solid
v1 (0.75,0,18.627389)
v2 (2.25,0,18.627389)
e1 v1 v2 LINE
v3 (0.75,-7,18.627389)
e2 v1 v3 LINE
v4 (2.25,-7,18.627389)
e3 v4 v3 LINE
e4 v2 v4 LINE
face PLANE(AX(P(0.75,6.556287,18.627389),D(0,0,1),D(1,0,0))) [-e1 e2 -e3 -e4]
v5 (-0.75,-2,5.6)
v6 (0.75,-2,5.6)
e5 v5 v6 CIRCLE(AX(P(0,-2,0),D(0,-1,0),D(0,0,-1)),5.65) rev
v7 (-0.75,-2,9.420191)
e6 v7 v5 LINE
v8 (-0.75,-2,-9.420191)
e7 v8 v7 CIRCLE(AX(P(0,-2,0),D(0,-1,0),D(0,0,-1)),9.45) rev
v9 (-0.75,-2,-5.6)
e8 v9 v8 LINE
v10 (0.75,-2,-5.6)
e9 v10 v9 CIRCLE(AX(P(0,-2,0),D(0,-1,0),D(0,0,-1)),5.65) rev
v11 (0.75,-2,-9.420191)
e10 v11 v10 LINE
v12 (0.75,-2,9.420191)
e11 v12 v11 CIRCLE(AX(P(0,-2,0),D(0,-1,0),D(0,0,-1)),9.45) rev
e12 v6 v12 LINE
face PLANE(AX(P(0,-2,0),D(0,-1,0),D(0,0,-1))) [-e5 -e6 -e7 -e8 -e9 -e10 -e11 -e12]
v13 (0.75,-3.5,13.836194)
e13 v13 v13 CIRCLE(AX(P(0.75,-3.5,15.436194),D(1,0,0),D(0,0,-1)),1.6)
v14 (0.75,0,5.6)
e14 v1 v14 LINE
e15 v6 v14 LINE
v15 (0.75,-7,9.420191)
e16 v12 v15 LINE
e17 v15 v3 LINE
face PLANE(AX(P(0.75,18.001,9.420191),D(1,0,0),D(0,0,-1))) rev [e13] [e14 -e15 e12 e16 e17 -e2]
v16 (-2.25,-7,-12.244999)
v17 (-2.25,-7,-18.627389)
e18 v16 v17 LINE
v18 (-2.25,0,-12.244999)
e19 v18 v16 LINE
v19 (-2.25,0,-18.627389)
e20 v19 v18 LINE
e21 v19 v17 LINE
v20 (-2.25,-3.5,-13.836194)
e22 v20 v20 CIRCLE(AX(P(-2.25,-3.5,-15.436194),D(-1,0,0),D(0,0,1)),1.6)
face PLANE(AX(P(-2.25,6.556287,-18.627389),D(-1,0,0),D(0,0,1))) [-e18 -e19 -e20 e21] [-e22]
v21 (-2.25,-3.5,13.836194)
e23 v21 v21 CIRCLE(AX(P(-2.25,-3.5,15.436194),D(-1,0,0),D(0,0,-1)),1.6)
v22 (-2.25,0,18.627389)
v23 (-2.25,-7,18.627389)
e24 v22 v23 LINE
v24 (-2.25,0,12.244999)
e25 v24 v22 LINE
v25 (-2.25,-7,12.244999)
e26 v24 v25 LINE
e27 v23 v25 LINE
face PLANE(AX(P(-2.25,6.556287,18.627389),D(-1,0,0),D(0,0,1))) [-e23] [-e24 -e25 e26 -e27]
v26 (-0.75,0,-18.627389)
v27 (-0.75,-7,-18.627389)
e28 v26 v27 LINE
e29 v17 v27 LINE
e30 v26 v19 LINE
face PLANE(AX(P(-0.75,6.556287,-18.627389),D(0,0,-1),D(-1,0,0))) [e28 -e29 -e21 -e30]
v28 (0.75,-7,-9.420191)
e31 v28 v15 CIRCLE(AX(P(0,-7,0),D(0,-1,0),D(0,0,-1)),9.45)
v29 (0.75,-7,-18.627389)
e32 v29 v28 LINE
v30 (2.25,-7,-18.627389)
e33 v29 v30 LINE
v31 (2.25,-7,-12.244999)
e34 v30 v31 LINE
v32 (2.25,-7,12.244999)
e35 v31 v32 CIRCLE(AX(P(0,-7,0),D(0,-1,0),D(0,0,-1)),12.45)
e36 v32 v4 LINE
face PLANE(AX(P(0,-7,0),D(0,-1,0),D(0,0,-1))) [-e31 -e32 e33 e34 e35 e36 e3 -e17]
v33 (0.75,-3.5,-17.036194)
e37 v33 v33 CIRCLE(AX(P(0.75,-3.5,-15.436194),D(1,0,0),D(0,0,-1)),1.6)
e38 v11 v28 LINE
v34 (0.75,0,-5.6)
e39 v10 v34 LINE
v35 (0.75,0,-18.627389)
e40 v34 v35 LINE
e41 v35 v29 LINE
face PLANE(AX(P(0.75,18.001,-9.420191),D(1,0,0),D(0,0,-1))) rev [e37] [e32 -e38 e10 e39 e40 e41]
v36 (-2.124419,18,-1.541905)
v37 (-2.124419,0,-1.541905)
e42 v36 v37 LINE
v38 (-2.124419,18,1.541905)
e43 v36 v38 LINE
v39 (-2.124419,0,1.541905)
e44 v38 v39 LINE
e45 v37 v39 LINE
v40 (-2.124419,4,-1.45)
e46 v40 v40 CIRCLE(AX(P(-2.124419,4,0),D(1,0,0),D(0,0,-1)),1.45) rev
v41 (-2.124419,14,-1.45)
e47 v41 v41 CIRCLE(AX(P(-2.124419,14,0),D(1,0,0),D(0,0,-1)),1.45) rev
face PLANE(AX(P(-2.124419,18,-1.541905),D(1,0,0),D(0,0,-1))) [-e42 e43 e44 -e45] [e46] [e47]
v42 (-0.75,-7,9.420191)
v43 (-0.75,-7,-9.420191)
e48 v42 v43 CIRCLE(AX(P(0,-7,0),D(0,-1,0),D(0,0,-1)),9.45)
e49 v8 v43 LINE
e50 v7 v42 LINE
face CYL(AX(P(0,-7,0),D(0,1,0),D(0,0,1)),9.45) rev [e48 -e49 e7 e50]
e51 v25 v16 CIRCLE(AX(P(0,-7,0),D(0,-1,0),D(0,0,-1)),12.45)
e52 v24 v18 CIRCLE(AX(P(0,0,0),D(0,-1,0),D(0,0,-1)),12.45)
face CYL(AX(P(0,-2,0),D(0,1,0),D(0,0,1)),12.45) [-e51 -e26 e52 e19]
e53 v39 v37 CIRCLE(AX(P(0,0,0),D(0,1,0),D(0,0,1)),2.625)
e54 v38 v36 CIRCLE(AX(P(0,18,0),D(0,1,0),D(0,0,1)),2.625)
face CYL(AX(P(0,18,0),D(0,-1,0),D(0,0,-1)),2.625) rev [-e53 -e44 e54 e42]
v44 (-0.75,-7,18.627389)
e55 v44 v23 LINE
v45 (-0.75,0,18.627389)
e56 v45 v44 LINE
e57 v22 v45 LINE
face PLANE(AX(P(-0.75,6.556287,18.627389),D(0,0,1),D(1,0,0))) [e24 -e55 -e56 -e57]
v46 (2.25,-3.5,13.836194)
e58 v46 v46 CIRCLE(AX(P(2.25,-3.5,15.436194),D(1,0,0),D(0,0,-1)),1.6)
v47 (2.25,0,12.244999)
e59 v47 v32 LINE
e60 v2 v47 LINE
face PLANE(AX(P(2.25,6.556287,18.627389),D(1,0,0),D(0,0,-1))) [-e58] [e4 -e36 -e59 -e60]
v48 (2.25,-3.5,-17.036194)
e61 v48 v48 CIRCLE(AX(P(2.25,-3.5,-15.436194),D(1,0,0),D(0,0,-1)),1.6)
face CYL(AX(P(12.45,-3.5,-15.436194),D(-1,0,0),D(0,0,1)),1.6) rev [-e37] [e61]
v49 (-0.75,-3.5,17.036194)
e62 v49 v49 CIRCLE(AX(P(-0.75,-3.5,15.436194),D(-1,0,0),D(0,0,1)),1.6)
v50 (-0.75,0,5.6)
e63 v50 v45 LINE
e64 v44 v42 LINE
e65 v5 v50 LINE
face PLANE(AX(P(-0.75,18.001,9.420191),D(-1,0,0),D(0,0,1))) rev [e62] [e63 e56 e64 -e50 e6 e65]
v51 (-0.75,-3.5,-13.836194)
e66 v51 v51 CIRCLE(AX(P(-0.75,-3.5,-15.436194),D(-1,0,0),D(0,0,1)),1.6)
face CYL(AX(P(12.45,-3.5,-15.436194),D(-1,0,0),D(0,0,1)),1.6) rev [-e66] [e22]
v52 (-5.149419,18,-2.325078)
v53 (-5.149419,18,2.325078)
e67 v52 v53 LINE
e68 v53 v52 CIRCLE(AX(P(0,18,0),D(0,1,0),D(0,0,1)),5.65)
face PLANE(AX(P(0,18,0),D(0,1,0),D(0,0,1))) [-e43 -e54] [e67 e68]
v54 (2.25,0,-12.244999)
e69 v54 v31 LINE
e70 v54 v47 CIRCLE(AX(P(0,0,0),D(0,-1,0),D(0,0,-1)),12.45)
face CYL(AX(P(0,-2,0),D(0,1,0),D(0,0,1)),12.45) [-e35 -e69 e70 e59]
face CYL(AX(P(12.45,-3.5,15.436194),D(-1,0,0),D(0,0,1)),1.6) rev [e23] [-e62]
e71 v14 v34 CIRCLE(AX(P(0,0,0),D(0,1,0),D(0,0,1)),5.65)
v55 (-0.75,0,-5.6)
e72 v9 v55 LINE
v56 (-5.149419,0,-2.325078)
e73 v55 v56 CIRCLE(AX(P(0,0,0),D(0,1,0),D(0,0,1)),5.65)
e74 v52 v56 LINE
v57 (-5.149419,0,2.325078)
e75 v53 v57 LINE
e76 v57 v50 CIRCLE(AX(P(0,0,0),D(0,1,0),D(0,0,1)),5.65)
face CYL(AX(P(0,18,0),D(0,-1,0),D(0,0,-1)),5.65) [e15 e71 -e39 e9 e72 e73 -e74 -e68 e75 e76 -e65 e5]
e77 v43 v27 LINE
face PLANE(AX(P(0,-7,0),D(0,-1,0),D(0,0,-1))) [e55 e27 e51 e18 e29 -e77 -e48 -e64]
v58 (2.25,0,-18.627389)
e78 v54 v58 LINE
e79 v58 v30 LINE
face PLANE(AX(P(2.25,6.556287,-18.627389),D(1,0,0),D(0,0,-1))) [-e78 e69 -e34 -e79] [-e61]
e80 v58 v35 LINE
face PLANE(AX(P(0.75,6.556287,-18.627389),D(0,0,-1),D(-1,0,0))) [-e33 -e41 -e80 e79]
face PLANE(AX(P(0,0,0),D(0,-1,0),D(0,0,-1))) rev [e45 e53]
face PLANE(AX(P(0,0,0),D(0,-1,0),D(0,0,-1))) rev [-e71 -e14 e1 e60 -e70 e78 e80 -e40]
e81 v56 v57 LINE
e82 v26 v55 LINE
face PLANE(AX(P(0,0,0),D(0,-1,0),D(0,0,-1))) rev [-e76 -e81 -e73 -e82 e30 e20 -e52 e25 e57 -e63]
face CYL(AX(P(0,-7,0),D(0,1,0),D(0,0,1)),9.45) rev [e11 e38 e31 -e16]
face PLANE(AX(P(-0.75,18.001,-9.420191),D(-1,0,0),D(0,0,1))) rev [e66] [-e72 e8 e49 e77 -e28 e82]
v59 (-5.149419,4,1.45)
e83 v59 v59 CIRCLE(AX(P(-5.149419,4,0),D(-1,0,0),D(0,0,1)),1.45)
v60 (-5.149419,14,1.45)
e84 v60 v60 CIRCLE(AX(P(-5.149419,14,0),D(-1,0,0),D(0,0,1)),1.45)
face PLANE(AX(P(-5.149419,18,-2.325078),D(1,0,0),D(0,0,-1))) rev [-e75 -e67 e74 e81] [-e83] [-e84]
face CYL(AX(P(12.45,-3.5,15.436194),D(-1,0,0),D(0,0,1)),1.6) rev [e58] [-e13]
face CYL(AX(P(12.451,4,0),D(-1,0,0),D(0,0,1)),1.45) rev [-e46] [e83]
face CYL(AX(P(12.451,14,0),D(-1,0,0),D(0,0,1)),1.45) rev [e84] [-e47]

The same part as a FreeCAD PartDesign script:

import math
import FreeCAD as App
import Part
import Sketcher

V = App.Vector
Q = App.Units.Quantity

doc = App.newDocument("Part")
body = doc.addObject("PartDesign::Body", "Body")

# Sketch on XZ plane
sketch1 = body.newObject("Sketcher::SketchObject", "Sketch")
sketch1.AttachmentSupport = (doc.getObject("XZ_Plane"), [""])
sketch1.MapMode = "FlatFace"
sketch1.addGeometry(Part.LineSegment(V(-5.149419, -2.325078, 0), V(-5.149419, 2.325078, 0)), False)
sketch1.addGeometry(Part.ArcOfCircle(Part.Circle(V(0, 0, 0), V(0, 0, 1), 5.65), math.radians(-155.699754), math.radians(155.699754)), False)
sketch1.addGeometry(Part.LineSegment(V(-2.124419, 1.541905, 0), V(-2.124419, -1.541905, 0)), False)
sketch1.addGeometry(Part.ArcOfCircle(Part.Circle(V(0, 0, 0), V(0, 0, 1), 2.625), math.radians(-144.02782), math.radians(144.02782)), False)
sketch1.addConstraint(Sketcher.Constraint("Coincident", 0, 1, 1, 1))
sketch1.addConstraint(Sketcher.Constraint("Coincident", 1, 2, 0, 2))
sketch1.addConstraint(Sketcher.Constraint("Coincident", 2, 1, 3, 2))
sketch1.addConstraint(Sketcher.Constraint("Coincident", 3, 1, 2, 2))
sketch1.addConstraint(Sketcher.Constraint("Vertical", 0))
sketch1.addConstraint(Sketcher.Constraint("Vertical", 2))
sketch1.addConstraint(Sketcher.Constraint("Coincident", 1, 3, -1, 1))
sketch1.addConstraint(Sketcher.Constraint("Coincident", 3, 3, -1, 1))
sketch1.addConstraint(Sketcher.Constraint("Radius", 1, Q("5.65 mm")))
sketch1.addConstraint(Sketcher.Constraint("Radius", 3, Q("2.625 mm")))
sketch1.addConstraint(Sketcher.Constraint("DistanceX", 1, 2, 2, 1, Q("3.025 mm")))
sketch1.addConstraint(Sketcher.Constraint("DistanceY", 2, 2, 2, 1, Q("3.08381 mm")))
pad1 = body.newObject("PartDesign::Pad", "Pad")
pad1.Profile = sketch1
pad1.Length = 18
pad1.Reversed = True
body2 = doc.addObject("PartDesign::Body", "Body001")

# Sketch on XZ plane
sketch2 = body2.newObject("Sketcher::SketchObject", "Sketch001")
sketch2.AttachmentSupport = (doc.getObject("XZ_Plane001"), [""])
sketch2.MapMode = "FlatFace"
sketch2.addGeometry(Part.Circle(V(0, 0, 0), V(0, 0, 1), 12.45), False)
sketch2.addGeometry(Part.Circle(V(0, 0, 0), V(0, 0, 1), 9.45), False)
sketch2.addConstraint(Sketcher.Constraint("Coincident", 0, 3, -1, 1))
sketch2.addConstraint(Sketcher.Constraint("Coincident", 1, 3, -1, 1))
sketch2.addConstraint(Sketcher.Constraint("Diameter", 0, Q("24.9 mm")))
sketch2.addConstraint(Sketcher.Constraint("Diameter", 1, Q("18.9 mm")))
pad2 = body2.newObject("PartDesign::Pad", "Pad001")
pad2.Profile = sketch2
pad2.Length = 7
body.AllowCompound = True
doc.recompute()

boolean = body.newObject("PartDesign::Boolean", "Boolean")
boolean.Type = "Fuse"
boolean.addObjects([body2])

# Sketch on XZ plane
sketch3 = body.newObject("Sketcher::SketchObject", "Sketch002")
sketch3.AttachmentSupport = (doc.getObject("XZ_Plane"), [""])
sketch3.MapMode = "FlatFace"
sketch3.addGeometry(Part.Circle(V(0, 0, 0), V(0, 0, 1), 12.45), False)
sketch3.addConstraint(Sketcher.Constraint("Coincident", 0, 3, -1, 1))
sketch3.addConstraint(Sketcher.Constraint("Diameter", 0, Q("24.9 mm")))
pad3 = body.newObject("PartDesign::Pad", "Pad002")
pad3.Profile = sketch3
pad3.Length = 2

# Sketch on YZ plane
sketch4 = body.newObject("Sketcher::SketchObject", "Sketch003")
sketch4.AttachmentSupport = (doc.getObject("YZ_Plane"), [""])
sketch4.MapMode = "FlatFace"
sketch4.AttachmentOffset = App.Placement(V(0, 0, -5.149419), App.Rotation())
sketch4.addGeometry(Part.Circle(V(14, 0, 0), V(0, 0, 1), 1.45), False)
sketch4.addConstraint(Sketcher.Constraint("PointOnObject", 0, 3, -1))
sketch4.addConstraint(Sketcher.Constraint("Diameter", 0, Q("2.9 mm")))
sketch4.addConstraint(Sketcher.Constraint("DistanceX", -1, 1, 0, 3, Q("14 mm")))
pocket1 = body.newObject("PartDesign::Pocket", "Pocket")
pocket1.Profile = sketch4
pocket1.Type = "UpToFirst"
pocket1.Reversed = True

# Sketch on YZ plane
sketch5 = body.newObject("Sketcher::SketchObject", "Sketch004")
sketch5.AttachmentSupport = (doc.getObject("YZ_Plane"), [""])
sketch5.MapMode = "FlatFace"
sketch5.AttachmentOffset = App.Placement(V(0, 0, -5.149419), App.Rotation())
sketch5.addGeometry(Part.Circle(V(4, 0, 0), V(0, 0, 1), 1.45), False)
sketch5.addConstraint(Sketcher.Constraint("PointOnObject", 0, 3, -1))
sketch5.addConstraint(Sketcher.Constraint("Diameter", 0, Q("2.9 mm")))
sketch5.addConstraint(Sketcher.Constraint("DistanceX", -1, 1, 0, 3, Q("4 mm")))
pocket2 = body.newObject("PartDesign::Pocket", "Pocket001")
pocket2.Profile = sketch5
pocket2.Type = "UpToFirst"
pocket2.Reversed = True

# Sketch on XZ plane
sketch6 = body.newObject("Sketcher::SketchObject", "Sketch005")
sketch6.AttachmentSupport = (doc.getObject("XZ_Plane"), [""])
sketch6.MapMode = "FlatFace"
sketch6.AttachmentOffset = App.Placement(V(0, 0, 7), App.Rotation())
sketch6.addGeometry(Part.LineSegment(V(0.75, 9.420191, 0), V(0.75, 12.427389, 0)), False)
sketch6.addGeometry(Part.ArcOfCircle(Part.Circle(V(0, 0, 0), V(0, 0, 1), 12.45), math.radians(86.546356), math.radians(93.453644)), False)
sketch6.addGeometry(Part.LineSegment(V(-0.75, 12.427389, 0), V(-0.75, 9.420191, 0)), False)
sketch6.addGeometry(Part.ArcOfCircle(Part.Circle(V(0, 0, 0), V(0, 0, 1), 9.45), math.radians(85.447929), math.radians(94.552071)), False)
sketch6.addConstraint(Sketcher.Constraint("Coincident", 0, 2, 1, 1))
sketch6.addConstraint(Sketcher.Constraint("Coincident", 1, 2, 2, 1))
sketch6.addConstraint(Sketcher.Constraint("Coincident", 2, 2, 3, 2))
sketch6.addConstraint(Sketcher.Constraint("Coincident", 3, 1, 0, 1))
sketch6.addConstraint(Sketcher.Constraint("Vertical", 0))
sketch6.addConstraint(Sketcher.Constraint("Vertical", 2))
sketch6.addConstraint(Sketcher.Constraint("Coincident", 1, 3, -1, 1))
sketch6.addConstraint(Sketcher.Constraint("Coincident", 3, 3, -1, 1))
sketch6.addConstraint(Sketcher.Constraint("Horizontal", 0, 2, 1, 2))
sketch6.addConstraint(Sketcher.Constraint("Radius", 1, Q("12.45 mm")))
sketch6.addConstraint(Sketcher.Constraint("Radius", 3, Q("9.45 mm")))
sketch6.addConstraint(Sketcher.Constraint("DistanceX", 1, 2, 0, 2, Q("1.5 mm")))
pocket3 = body.newObject("PartDesign::Pocket", "Pocket002")
pocket3.Profile = sketch6
pocket3.Type = "UpToFirst"

# Sketch on XZ plane
sketch7 = body.newObject("Sketcher::SketchObject", "Sketch006")
sketch7.AttachmentSupport = (doc.getObject("XZ_Plane"), [""])
sketch7.MapMode = "FlatFace"
sketch7.AttachmentOffset = App.Placement(V(0, 0, 7), App.Rotation())
sketch7.addGeometry(Part.LineSegment(V(0.75, -12.427389, 0), V(0.75, -9.420191, 0)), False)
sketch7.addGeometry(Part.ArcOfCircle(Part.Circle(V(0, 0, 0), V(0, 0, 1), 9.45), math.radians(-94.552071), math.radians(-85.447929)), False)
sketch7.addGeometry(Part.LineSegment(V(-0.75, -9.420191, 0), V(-0.75, -12.427389, 0)), False)
sketch7.addGeometry(Part.ArcOfCircle(Part.Circle(V(0, 0, 0), V(0, 0, 1), 12.45), math.radians(-93.453644), math.radians(-86.546356)), False)
sketch7.addConstraint(Sketcher.Constraint("Coincident", 0, 2, 1, 2))
sketch7.addConstraint(Sketcher.Constraint("Coincident", 1, 1, 2, 1))
sketch7.addConstraint(Sketcher.Constraint("Coincident", 2, 2, 3, 1))
sketch7.addConstraint(Sketcher.Constraint("Coincident", 3, 2, 0, 1))
sketch7.addConstraint(Sketcher.Constraint("Vertical", 0))
sketch7.addConstraint(Sketcher.Constraint("Vertical", 2))
sketch7.addConstraint(Sketcher.Constraint("Coincident", 1, 3, -1, 1))
sketch7.addConstraint(Sketcher.Constraint("Coincident", 3, 3, -1, 1))
sketch7.addConstraint(Sketcher.Constraint("Horizontal", 0, 2, 1, 1))
sketch7.addConstraint(Sketcher.Constraint("Radius", 1, Q("9.45 mm")))
sketch7.addConstraint(Sketcher.Constraint("Radius", 3, Q("12.45 mm")))
sketch7.addConstraint(Sketcher.Constraint("DistanceX", 1, 1, 0, 2, Q("1.5 mm")))
pocket4 = body.newObject("PartDesign::Pocket", "Pocket003")
pocket4.Profile = sketch7
pocket4.Type = "UpToFirst"

# Sketch on XZ plane
sketch8 = body.newObject("Sketcher::SketchObject", "Sketch007")
sketch8.AttachmentSupport = (doc.getObject("XZ_Plane"), [""])
sketch8.MapMode = "FlatFace"
sketch8.addGeometry(Part.LineSegment(V(-0.75, 12.427389, 0), V(-0.75, 18.627389, 0)), False)
sketch8.addGeometry(Part.LineSegment(V(-0.75, 18.627389, 0), V(-2.25, 18.627389, 0)), False)
sketch8.addGeometry(Part.LineSegment(V(-2.25, 18.627389, 0), V(-2.25, 12.244999, 0)), False)
sketch8.addGeometry(Part.ArcOfCircle(Part.Circle(V(0, 0, 0), V(0, 0, 1), 12.45), math.radians(93.453644), math.radians(100.411869)), False)
sketch8.addGeometry(Part.LineSegment(V(2.25, 12.244999, 0), V(2.25, 18.627389, 0)), False)
sketch8.addGeometry(Part.LineSegment(V(2.25, 18.627389, 0), V(0.75, 18.627389, 0)), False)
sketch8.addGeometry(Part.LineSegment(V(0.75, 18.627389, 0), V(0.75, 12.427389, 0)), False)
sketch8.addGeometry(Part.ArcOfCircle(Part.Circle(V(0, 0, 0), V(0, 0, 1), 12.45), math.radians(79.588131), math.radians(86.546356)), False)
sketch8.addGeometry(Part.LineSegment(V(0.75, -12.427389, 0), V(0.75, -18.627389, 0)), False)
sketch8.addGeometry(Part.LineSegment(V(0.75, -18.627389, 0), V(2.25, -18.627389, 0)), False)
sketch8.addGeometry(Part.LineSegment(V(2.25, -18.627389, 0), V(2.25, -12.244999, 0)), False)
sketch8.addGeometry(Part.ArcOfCircle(Part.Circle(V(0, 0, 0), V(0, 0, 1), 12.45), math.radians(-86.546356), math.radians(-79.588131)), False)
sketch8.addGeometry(Part.LineSegment(V(-2.25, -12.244999, 0), V(-2.25, -18.627389, 0)), False)
sketch8.addGeometry(Part.LineSegment(V(-2.25, -18.627389, 0), V(-0.75, -18.627389, 0)), False)
sketch8.addGeometry(Part.LineSegment(V(-0.75, -18.627389, 0), V(-0.75, -12.427389, 0)), False)
sketch8.addGeometry(Part.ArcOfCircle(Part.Circle(V(0, 0, 0), V(0, 0, 1), 12.45), math.radians(-100.411869), math.radians(-93.453644)), False)
sketch8.addConstraint(Sketcher.Constraint("Coincident", 0, 2, 1, 1))
sketch8.addConstraint(Sketcher.Constraint("Coincident", 1, 2, 2, 1))
sketch8.addConstraint(Sketcher.Constraint("Coincident", 2, 2, 3, 2))
sketch8.addConstraint(Sketcher.Constraint("Coincident", 3, 1, 0, 1))
sketch8.addConstraint(Sketcher.Constraint("Coincident", 4, 2, 5, 1))
sketch8.addConstraint(Sketcher.Constraint("Coincident", 5, 2, 6, 1))
sketch8.addConstraint(Sketcher.Constraint("Coincident", 6, 2, 7, 2))
sketch8.addConstraint(Sketcher.Constraint("Coincident", 7, 1, 4, 1))
sketch8.addConstraint(Sketcher.Constraint("Coincident", 8, 2, 9, 1))
sketch8.addConstraint(Sketcher.Constraint("Coincident", 9, 2, 10, 1))
sketch8.addConstraint(Sketcher.Constraint("Coincident", 10, 2, 11, 2))
sketch8.addConstraint(Sketcher.Constraint("Coincident", 11, 1, 8, 1))
sketch8.addConstraint(Sketcher.Constraint("Coincident", 12, 2, 13, 1))
sketch8.addConstraint(Sketcher.Constraint("Coincident", 13, 2, 14, 1))
sketch8.addConstraint(Sketcher.Constraint("Coincident", 14, 2, 15, 2))
sketch8.addConstraint(Sketcher.Constraint("Coincident", 15, 1, 12, 1))
sketch8.addConstraint(Sketcher.Constraint("Vertical", 0))
sketch8.addConstraint(Sketcher.Constraint("Horizontal", 1))
sketch8.addConstraint(Sketcher.Constraint("Vertical", 2))
sketch8.addConstraint(Sketcher.Constraint("Vertical", 4))
sketch8.addConstraint(Sketcher.Constraint("Horizontal", 5))
sketch8.addConstraint(Sketcher.Constraint("Vertical", 6))
sketch8.addConstraint(Sketcher.Constraint("Vertical", 8))
sketch8.addConstraint(Sketcher.Constraint("Horizontal", 9))
sketch8.addConstraint(Sketcher.Constraint("Vertical", 10))
sketch8.addConstraint(Sketcher.Constraint("Vertical", 12))
sketch8.addConstraint(Sketcher.Constraint("Horizontal", 13))
sketch8.addConstraint(Sketcher.Constraint("Vertical", 14))
sketch8.addConstraint(Sketcher.Constraint("Coincident", 3, 3, -1, 1))
sketch8.addConstraint(Sketcher.Constraint("Coincident", 7, 3, -1, 1))
sketch8.addConstraint(Sketcher.Constraint("Coincident", 11, 3, -1, 1))
sketch8.addConstraint(Sketcher.Constraint("Coincident", 15, 3, -1, 1))
sketch8.addConstraint(Sketcher.Constraint("Equal", 3, 7))
sketch8.addConstraint(Sketcher.Constraint("Equal", 7, 11))
sketch8.addConstraint(Sketcher.Constraint("Equal", 11, 15))
sketch8.addConstraint(Sketcher.Constraint("Symmetric", 0, 2, 8, 2, -1, 1))
sketch8.addConstraint(Sketcher.Constraint("Symmetric", 4, 2, 12, 2, -1, 1))
sketch8.addConstraint(Sketcher.Constraint("Symmetric", 1, 2, 4, 2, -2))
sketch8.addConstraint(Sketcher.Constraint("Horizontal", 3, 1, 6, 2))
sketch8.addConstraint(Sketcher.Constraint("Horizontal", 11, 1, 14, 2))
sketch8.addConstraint(Sketcher.Constraint("Horizontal", 10, 2, 15, 1))
sketch8.addConstraint(Sketcher.Constraint("Radius", 3, Q("12.45 mm")))
sketch8.addConstraint(Sketcher.Constraint("DistanceX", 1, 2, 1, 1, Q("1.5 mm")))
sketch8.addConstraint(Sketcher.Constraint("DistanceY", 0, 1, 0, 2, Q("6.2 mm")))
sketch8.addConstraint(Sketcher.Constraint("DistanceX", 0, 2, 4, 2, Q("3 mm")))
pad4 = body.newObject("PartDesign::Pad", "Pad003")
pad4.Profile = sketch8
pad4.Length = 7

# Sketch on YZ plane
sketch9 = body.newObject("Sketcher::SketchObject", "Sketch008")
sketch9.AttachmentSupport = (doc.getObject("YZ_Plane"), [""])
sketch9.MapMode = "FlatFace"
sketch9.AttachmentOffset = App.Placement(V(0, 0, -2.25), App.Rotation())
sketch9.addGeometry(Part.Circle(V(-3.5, -15.436194, 0), V(0, 0, 1), 1.6), False)
sketch9.addGeometry(Part.Circle(V(-3.5, 15.436194, 0), V(0, 0, 1), 1.6), False)
sketch9.addConstraint(Sketcher.Constraint("Equal", 0, 1))
sketch9.addConstraint(Sketcher.Constraint("Symmetric", 0, 3, 1, 3, -1))
sketch9.addConstraint(Sketcher.Constraint("Diameter", 0, Q("3.2 mm")))
sketch9.addConstraint(Sketcher.Constraint("DistanceX", 0, 3, -1, 1, Q("3.5 mm")))
sketch9.addConstraint(Sketcher.Constraint("DistanceY", 0, 3, 1, 3, Q("30.872388 mm")))
pocket5 = body.newObject("PartDesign::Pocket", "Pocket004")
pocket5.Profile = sketch9
pocket5.Type = "ThroughAll"
pocket5.Reversed = True

# Sketch on XZ plane
sketch10 = body.newObject("Sketcher::SketchObject", "Sketch009")
sketch10.AttachmentSupport = (doc.getObject("XZ_Plane"), [""])
sketch10.MapMode = "FlatFace"
sketch10.addGeometry(Part.LineSegment(V(-0.75, 5.6, 0), V(-0.75, 9.420191, 0)), False)
sketch10.addGeometry(Part.ArcOfCircle(Part.Circle(V(0, 0, 0), V(0, 0, 1), 9.45), math.radians(85.447929), math.radians(94.552071)), False)
sketch10.addGeometry(Part.LineSegment(V(0.75, 9.420191, 0), V(0.75, 5.6, 0)), False)
sketch10.addGeometry(Part.ArcOfCircle(Part.Circle(V(0, 0, 0), V(0, 0, 1), 5.65), math.radians(82.37185), math.radians(97.62815)), False)
sketch10.addGeometry(Part.LineSegment(V(-0.75, -9.420191, 0), V(-0.75, -5.6, 0)), False)
sketch10.addGeometry(Part.ArcOfCircle(Part.Circle(V(0, 0, 0), V(0, 0, 1), 5.65), math.radians(-97.62815), math.radians(-82.37185)), False)
sketch10.addGeometry(Part.LineSegment(V(0.75, -5.6, 0), V(0.75, -9.420191, 0)), False)
sketch10.addGeometry(Part.ArcOfCircle(Part.Circle(V(0, 0, 0), V(0, 0, 1), 9.45), math.radians(-94.552071), math.radians(-85.447929)), False)
sketch10.addConstraint(Sketcher.Constraint("Coincident", 0, 2, 1, 2))
sketch10.addConstraint(Sketcher.Constraint("Coincident", 1, 1, 2, 1))
sketch10.addConstraint(Sketcher.Constraint("Coincident", 2, 2, 3, 1))
sketch10.addConstraint(Sketcher.Constraint("Coincident", 3, 2, 0, 1))
sketch10.addConstraint(Sketcher.Constraint("Coincident", 4, 2, 5, 1))
sketch10.addConstraint(Sketcher.Constraint("Coincident", 5, 2, 6, 1))
sketch10.addConstraint(Sketcher.Constraint("Coincident", 6, 2, 7, 2))
sketch10.addConstraint(Sketcher.Constraint("Coincident", 7, 1, 4, 1))
sketch10.addConstraint(Sketcher.Constraint("Vertical", 0))
sketch10.addConstraint(Sketcher.Constraint("Vertical", 2))
sketch10.addConstraint(Sketcher.Constraint("Vertical", 4))
sketch10.addConstraint(Sketcher.Constraint("Vertical", 6))
sketch10.addConstraint(Sketcher.Constraint("Coincident", 1, 3, -1, 1))
sketch10.addConstraint(Sketcher.Constraint("Coincident", 3, 3, -1, 1))
sketch10.addConstraint(Sketcher.Constraint("Coincident", 5, 3, -1, 1))
sketch10.addConstraint(Sketcher.Constraint("Coincident", 7, 3, -1, 1))
sketch10.addConstraint(Sketcher.Constraint("Equal", 3, 5))
sketch10.addConstraint(Sketcher.Constraint("Equal", 1, 7))
sketch10.addConstraint(Sketcher.Constraint("Horizontal", 0, 2, 1, 1))
sketch10.addConstraint(Sketcher.Constraint("Horizontal", 4, 2, 5, 2))
sketch10.addConstraint(Sketcher.Constraint("Vertical", 3, 2, 4, 2))
sketch10.addConstraint(Sketcher.Constraint("Radius", 1, Q("9.45 mm")))
sketch10.addConstraint(Sketcher.Constraint("Radius", 3, Q("5.65 mm")))
sketch10.addConstraint(Sketcher.Constraint("DistanceY", -1, 1, 2, 2, Q("5.6 mm")))
pocket6 = body.newObject("PartDesign::Pocket", "Pocket005")
pocket6.Profile = sketch10
pocket6.Type = "ThroughAll"
pocket6.Reversed = True

doc.recompute()
